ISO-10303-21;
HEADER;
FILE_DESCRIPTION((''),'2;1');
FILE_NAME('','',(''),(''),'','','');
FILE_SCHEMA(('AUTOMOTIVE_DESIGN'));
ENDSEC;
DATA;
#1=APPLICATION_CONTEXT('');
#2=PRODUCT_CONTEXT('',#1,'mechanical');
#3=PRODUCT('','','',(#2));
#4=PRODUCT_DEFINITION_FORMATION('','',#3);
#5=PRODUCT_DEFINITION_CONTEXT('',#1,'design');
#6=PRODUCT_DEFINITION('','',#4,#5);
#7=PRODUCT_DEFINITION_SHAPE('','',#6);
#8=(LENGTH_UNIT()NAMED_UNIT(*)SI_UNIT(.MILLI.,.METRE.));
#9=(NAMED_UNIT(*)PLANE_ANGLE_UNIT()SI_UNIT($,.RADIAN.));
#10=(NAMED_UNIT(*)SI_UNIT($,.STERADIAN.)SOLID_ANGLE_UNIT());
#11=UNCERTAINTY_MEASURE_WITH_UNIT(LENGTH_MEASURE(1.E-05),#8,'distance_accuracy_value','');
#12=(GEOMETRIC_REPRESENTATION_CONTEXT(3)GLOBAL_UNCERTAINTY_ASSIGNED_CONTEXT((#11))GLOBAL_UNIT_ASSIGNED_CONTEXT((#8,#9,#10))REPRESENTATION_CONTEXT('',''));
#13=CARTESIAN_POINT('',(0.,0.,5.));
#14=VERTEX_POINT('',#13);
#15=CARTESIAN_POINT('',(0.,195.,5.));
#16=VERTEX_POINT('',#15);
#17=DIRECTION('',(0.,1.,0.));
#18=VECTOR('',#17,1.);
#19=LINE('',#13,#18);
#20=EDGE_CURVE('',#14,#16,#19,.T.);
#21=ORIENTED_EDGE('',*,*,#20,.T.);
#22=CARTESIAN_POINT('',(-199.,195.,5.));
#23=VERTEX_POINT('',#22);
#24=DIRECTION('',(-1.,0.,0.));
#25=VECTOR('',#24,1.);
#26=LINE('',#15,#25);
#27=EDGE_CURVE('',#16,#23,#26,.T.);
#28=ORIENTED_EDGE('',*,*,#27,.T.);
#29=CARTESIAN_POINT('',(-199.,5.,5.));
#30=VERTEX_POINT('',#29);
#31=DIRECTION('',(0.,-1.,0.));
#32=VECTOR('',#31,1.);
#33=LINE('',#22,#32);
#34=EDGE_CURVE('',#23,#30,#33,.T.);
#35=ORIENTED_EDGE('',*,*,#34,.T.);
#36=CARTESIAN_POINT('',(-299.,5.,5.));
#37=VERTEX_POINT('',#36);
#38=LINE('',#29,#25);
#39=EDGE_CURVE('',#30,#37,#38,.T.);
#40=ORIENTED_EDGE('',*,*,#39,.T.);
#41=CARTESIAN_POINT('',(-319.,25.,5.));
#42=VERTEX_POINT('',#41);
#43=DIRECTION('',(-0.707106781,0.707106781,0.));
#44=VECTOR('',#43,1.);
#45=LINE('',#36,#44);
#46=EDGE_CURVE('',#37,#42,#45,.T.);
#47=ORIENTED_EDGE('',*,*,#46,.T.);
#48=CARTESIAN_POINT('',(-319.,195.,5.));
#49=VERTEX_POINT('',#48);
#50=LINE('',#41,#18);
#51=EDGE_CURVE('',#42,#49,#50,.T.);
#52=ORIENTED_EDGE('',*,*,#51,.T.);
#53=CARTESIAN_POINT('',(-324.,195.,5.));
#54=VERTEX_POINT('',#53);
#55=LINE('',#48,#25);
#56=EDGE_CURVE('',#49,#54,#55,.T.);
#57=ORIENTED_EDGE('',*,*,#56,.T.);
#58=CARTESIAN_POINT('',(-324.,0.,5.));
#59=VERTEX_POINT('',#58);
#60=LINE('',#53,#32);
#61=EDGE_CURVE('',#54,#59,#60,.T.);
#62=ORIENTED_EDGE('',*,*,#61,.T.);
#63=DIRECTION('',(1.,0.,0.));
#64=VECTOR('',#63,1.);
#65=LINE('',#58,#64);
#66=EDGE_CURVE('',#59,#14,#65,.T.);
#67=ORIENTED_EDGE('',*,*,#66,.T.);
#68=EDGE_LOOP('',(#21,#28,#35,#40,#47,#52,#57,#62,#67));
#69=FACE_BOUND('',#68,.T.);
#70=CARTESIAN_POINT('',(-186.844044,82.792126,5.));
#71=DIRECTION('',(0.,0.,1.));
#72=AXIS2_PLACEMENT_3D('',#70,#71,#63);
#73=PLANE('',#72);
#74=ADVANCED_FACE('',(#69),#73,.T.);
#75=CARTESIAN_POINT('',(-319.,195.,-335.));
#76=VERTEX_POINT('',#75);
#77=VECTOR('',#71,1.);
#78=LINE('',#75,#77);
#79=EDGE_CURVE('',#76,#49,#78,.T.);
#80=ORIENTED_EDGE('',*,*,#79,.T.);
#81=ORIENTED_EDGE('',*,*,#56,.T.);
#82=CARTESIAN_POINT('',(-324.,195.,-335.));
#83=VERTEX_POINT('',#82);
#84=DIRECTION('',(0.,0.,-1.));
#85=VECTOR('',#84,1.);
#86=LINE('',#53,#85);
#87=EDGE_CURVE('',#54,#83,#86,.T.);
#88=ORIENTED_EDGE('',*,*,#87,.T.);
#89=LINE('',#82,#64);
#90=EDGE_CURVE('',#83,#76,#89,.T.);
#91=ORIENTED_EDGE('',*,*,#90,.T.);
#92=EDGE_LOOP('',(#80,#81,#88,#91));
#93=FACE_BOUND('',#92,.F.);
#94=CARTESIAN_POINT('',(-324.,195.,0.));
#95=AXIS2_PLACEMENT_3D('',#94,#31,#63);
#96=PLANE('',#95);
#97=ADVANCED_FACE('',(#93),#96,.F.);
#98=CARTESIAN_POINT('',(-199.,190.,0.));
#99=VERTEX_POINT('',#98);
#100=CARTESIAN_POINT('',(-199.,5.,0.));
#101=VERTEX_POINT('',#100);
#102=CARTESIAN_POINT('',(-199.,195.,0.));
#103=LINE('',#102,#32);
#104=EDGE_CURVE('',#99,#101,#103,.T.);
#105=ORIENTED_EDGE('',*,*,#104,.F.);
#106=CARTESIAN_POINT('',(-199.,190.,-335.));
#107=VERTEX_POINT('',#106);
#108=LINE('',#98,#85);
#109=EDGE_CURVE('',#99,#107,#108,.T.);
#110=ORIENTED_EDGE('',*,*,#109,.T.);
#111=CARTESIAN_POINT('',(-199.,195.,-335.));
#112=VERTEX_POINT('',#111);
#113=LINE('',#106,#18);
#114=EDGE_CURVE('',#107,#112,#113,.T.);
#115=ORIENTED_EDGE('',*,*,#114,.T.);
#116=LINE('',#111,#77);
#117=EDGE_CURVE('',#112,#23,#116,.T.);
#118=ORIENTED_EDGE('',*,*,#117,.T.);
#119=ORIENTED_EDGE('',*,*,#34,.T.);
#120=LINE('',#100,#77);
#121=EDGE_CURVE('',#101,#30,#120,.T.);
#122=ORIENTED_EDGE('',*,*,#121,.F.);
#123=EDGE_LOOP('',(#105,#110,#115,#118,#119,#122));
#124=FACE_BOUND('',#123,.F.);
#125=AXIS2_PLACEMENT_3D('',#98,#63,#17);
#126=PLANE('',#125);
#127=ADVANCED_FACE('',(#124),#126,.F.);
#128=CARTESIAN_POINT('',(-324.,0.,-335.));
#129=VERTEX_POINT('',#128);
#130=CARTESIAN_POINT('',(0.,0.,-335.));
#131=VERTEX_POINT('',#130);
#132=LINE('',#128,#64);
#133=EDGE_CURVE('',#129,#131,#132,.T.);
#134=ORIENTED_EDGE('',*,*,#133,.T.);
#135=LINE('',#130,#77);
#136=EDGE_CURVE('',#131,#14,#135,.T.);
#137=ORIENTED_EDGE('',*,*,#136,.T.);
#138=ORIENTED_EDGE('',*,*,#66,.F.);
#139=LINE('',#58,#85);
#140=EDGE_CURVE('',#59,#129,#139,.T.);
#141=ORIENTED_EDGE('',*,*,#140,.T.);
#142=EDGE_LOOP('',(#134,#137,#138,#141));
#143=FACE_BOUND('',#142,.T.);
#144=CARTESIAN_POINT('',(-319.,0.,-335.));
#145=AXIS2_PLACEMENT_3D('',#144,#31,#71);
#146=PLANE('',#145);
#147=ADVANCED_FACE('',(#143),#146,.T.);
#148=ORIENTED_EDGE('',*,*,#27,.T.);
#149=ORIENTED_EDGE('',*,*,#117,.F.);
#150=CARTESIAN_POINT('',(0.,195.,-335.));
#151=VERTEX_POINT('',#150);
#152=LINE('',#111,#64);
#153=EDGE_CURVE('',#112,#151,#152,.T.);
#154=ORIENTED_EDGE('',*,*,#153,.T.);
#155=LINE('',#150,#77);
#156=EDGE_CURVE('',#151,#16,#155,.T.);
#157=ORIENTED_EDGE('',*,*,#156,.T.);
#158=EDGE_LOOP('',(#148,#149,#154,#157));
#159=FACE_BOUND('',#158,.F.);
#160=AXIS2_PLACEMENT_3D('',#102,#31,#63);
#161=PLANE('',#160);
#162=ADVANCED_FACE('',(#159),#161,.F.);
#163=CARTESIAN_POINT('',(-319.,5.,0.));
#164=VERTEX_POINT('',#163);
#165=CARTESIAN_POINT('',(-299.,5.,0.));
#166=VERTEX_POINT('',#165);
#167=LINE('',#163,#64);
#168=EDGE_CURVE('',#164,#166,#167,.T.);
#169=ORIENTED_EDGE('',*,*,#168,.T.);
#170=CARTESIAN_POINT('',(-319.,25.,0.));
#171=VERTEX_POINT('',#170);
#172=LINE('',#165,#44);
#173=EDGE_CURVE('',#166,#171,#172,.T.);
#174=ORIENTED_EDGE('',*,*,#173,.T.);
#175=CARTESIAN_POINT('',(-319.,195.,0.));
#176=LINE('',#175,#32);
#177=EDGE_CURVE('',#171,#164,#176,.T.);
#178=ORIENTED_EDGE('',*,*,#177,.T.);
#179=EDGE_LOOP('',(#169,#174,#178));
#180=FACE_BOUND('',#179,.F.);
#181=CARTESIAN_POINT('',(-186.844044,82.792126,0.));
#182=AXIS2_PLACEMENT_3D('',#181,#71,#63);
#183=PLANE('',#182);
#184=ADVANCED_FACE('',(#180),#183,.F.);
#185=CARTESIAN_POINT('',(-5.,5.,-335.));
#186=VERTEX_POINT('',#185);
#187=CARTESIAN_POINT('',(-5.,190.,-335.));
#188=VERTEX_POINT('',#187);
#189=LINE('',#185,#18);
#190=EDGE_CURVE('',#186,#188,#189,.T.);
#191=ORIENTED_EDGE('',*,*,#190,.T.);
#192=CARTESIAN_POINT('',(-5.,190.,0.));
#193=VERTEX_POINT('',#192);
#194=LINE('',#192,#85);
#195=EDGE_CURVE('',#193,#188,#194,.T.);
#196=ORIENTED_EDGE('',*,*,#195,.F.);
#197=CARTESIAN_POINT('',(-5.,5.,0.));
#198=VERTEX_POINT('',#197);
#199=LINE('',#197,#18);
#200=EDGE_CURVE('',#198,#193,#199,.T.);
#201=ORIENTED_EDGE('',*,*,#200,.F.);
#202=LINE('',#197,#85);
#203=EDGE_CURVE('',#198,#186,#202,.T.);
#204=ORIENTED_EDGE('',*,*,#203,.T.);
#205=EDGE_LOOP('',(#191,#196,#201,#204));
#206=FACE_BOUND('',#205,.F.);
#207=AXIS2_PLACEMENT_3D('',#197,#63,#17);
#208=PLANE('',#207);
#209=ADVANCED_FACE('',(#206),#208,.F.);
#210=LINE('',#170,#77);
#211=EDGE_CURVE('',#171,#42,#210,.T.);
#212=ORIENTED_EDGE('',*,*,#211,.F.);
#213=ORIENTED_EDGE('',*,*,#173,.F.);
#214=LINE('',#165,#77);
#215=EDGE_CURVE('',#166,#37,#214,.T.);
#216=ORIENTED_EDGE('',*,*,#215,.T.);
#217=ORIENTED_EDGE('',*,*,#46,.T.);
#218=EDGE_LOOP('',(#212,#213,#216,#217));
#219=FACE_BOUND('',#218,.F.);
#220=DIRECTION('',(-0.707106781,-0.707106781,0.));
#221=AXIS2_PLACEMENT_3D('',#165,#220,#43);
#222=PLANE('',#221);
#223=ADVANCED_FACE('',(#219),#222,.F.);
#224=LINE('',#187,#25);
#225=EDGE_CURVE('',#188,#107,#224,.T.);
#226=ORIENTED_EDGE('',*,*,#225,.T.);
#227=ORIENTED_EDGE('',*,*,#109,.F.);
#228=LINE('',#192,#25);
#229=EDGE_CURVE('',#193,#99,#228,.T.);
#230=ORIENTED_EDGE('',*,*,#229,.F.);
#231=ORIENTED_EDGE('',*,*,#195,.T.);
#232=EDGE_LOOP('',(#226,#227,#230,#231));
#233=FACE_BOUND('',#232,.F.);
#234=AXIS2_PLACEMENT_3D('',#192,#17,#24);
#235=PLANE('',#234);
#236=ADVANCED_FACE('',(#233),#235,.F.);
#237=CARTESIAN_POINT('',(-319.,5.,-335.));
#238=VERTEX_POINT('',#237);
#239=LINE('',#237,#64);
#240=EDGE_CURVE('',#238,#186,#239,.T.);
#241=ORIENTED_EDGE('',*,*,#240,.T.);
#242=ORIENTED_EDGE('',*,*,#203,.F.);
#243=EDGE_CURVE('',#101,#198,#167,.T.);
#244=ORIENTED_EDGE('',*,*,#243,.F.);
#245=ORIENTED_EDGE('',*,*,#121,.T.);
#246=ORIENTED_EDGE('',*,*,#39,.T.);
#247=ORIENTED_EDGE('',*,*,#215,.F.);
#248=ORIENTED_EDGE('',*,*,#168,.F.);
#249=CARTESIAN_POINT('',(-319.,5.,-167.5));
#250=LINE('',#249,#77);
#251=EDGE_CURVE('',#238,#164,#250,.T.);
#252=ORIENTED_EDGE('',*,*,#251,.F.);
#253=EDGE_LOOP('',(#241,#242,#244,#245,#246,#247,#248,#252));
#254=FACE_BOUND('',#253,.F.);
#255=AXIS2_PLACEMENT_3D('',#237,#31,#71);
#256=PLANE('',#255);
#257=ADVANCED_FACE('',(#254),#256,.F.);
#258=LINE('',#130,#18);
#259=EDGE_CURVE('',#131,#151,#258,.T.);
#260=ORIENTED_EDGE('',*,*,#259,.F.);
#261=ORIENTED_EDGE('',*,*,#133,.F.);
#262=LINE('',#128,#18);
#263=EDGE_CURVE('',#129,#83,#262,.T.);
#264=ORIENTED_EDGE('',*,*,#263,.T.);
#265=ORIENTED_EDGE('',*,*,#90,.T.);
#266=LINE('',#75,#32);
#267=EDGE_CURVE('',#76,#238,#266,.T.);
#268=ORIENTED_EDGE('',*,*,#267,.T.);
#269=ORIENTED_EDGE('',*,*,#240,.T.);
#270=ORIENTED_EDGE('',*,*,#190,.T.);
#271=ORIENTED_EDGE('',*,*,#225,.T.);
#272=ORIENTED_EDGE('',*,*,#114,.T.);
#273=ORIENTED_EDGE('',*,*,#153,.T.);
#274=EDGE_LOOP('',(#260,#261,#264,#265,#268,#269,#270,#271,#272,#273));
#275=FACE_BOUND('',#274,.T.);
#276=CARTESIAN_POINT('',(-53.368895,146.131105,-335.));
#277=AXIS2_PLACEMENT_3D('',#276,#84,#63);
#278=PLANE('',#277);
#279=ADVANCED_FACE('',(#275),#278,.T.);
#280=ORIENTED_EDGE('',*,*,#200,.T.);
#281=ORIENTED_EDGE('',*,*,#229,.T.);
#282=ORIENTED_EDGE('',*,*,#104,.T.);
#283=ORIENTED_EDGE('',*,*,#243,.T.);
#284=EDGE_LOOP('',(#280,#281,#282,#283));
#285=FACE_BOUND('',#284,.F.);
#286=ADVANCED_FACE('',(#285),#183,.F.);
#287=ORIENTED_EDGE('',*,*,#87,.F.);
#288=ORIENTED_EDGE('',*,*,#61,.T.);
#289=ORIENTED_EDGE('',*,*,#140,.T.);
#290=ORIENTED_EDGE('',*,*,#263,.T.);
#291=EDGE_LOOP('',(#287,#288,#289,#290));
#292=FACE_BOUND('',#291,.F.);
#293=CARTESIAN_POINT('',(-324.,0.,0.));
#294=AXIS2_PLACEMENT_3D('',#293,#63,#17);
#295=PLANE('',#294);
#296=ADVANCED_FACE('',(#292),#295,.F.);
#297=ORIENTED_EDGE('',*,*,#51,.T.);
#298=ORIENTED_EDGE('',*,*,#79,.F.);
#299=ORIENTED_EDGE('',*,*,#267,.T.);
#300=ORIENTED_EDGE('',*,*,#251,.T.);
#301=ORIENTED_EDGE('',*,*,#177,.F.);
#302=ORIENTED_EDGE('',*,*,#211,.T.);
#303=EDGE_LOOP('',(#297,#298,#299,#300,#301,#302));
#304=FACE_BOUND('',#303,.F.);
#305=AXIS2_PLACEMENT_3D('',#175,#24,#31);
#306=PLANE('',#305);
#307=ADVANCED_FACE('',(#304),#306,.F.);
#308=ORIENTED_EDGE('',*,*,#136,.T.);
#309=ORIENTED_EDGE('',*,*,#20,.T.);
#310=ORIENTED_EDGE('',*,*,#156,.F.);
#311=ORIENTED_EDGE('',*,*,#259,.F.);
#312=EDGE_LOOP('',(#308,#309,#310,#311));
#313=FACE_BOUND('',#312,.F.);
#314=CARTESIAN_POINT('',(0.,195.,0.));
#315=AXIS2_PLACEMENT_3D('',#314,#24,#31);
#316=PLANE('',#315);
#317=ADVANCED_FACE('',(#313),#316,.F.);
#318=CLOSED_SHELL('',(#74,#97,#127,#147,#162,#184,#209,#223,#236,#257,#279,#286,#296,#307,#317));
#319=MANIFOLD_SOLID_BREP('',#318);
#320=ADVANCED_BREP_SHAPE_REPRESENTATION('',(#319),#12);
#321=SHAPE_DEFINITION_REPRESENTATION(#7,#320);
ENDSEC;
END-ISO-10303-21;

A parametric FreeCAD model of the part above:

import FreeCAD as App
import Part
import Sketcher

V = App.Vector
Q = App.Units.Quantity

doc = App.newDocument("Part")
body = doc.addObject("PartDesign::Body", "Body")

sketch1 = body.newObject("Sketcher::SketchObject", "Sketch")
sketch1.AttachmentSupport = (doc.getObject("XY_Plane"), [""])
sketch1.MapMode = "FlatFace"
sketch1.addGeometry([
    Part.LineSegment(V(-324, 0, 0), V(0, 0, 0)),
    Part.LineSegment(V(0, 0, 0), V(0, 195, 0)),
    Part.LineSegment(V(0, 195, 0), V(-199, 195, 0)),
    Part.LineSegment(V(-199, 195, 0), V(-199, 5, 0)),
    Part.LineSegment(V(-199, 5, 0), V(-299, 5, 0)),
    Part.LineSegment(V(-299, 5, 0), V(-319, 25, 0)),
    Part.LineSegment(V(-319, 25, 0), V(-319, 195, 0)),
    Part.LineSegment(V(-319, 195, 0), V(-324, 195, 0)),
    Part.LineSegment(V(-324, 195, 0), V(-324, 0, 0)),
], False)
sketch1.addConstraint([
    Sketcher.Constraint("Coincident", 0, 2, 1, 1),
    Sketcher.Constraint("Coincident", 1, 2, 2, 1),
    Sketcher.Constraint("Coincident", 2, 2, 3, 1),
    Sketcher.Constraint("Coincident", 3, 2, 4, 1),
    Sketcher.Constraint("Coincident", 4, 2, 5, 1),
    Sketcher.Constraint("Coincident", 5, 2, 6, 1),
    Sketcher.Constraint("Coincident", 6, 2, 7, 1),
    Sketcher.Constraint("Coincident", 7, 2, 8, 1),
    Sketcher.Constraint("Coincident", 8, 2, 0, 1),
    Sketcher.Constraint("Horizontal", 0),
    Sketcher.Constraint("Vertical", 1),
    Sketcher.Constraint("Horizontal", 2),
    Sketcher.Constraint("Vertical", 3),
    Sketcher.Constraint("Horizontal", 4),
    Sketcher.Constraint("Vertical", 6),
    Sketcher.Constraint("Horizontal", 7),
    Sketcher.Constraint("Vertical", 8),
    Sketcher.Constraint("Coincident", 0, 2, -1, 1),
    Sketcher.Constraint("Horizontal", 2, 2, 6, 2),
    Sketcher.Constraint("DistanceX", 0, 1, 0, 2, Q("324 mm")),
    Sketcher.Constraint("DistanceX", 2, 2, 2, 1, Q("199 mm")),
    Sketcher.Constraint("DistanceX", 4, 2, 4, 1, Q("100 mm")),
    Sketcher.Constraint("DistanceX", 7, 2, 7, 1, Q("5 mm")),
    Sketcher.Constraint("DistanceY", 1, 1, 1, 2, Q("195 mm")),
    Sketcher.Constraint("DistanceY", 3, 2, 3, 1, Q("190 mm")),
    Sketcher.Constraint("DistanceY", 6, 1, 6, 2, Q("170 mm")),
])
pad1 = body.newObject("PartDesign::Pad", "Pad")
pad1.Profile = sketch1
pad1.Length = 5

sketch2 = body.newObject("Sketcher::SketchObject", "Sketch001")
sketch2.AttachmentSupport = (doc.getObject("XY_Plane"), [""])
sketch2.MapMode = "FlatFace"
sketch2.addGeometry([
    Part.LineSegment(V(-319, 0, 0), V(-324, 0, 0)),
    Part.LineSegment(V(-324, 0, 0), V(-324, 195, 0)),
    Part.LineSegment(V(-324, 195, 0), V(-319, 195, 0)),
    Part.LineSegment(V(-319, 195, 0), V(-319, 0, 0)),
], False)
sketch2.addConstraint([
    Sketcher.Constraint("Coincident", 0, 2, 1, 1),
    Sketcher.Constraint("Coincident", 1, 2, 2, 1),
    Sketcher.Constraint("Coincident", 2, 2, 3, 1),
    Sketcher.Constraint("Coincident", 3, 2, 0, 1),
    Sketcher.Constraint("Horizontal", 0),
    Sketcher.Constraint("Vertical", 1),
    Sketcher.Constraint("Horizontal", 2),
    Sketcher.Constraint("Vertical", 3),
    Sketcher.Constraint("PointOnObject", 0, 2, -1),
    Sketcher.Constraint("DistanceX", 0, 2, 0, 1, Q("5 mm")),
    Sketcher.Constraint("DistanceY", 1, 1, 1, 2, Q("195 mm")),
    Sketcher.Constraint("DistanceX", 0, 2, -1, 1, Q("324 mm")),
])
pad2 = body.newObject("PartDesign::Pad", "Pad001")
pad2.Profile = sketch2
pad2.Length = 335
pad2.Reversed = True

sketch3 = body.newObject("Sketcher::SketchObject", "Sketch002")
sketch3.AttachmentSupport = (doc.getObject("YZ_Plane"), [""])
sketch3.MapMode = "FlatFace"
sketch3.AttachmentOffset = App.Placement(V(0, 0, -319), App.Rotation())
sketch3.addGeometry([
    Part.LineSegment(V(0, 0, 0), V(0, -335, 0)),
    Part.LineSegment(V(0, -335, 0), V(5, -335, 0)),
    Part.LineSegment(V(5, -335, 0), V(5, 0, 0)),
    Part.LineSegment(V(5, 0, 0), V(0, 0, 0)),
], False)
sketch3.addConstraint([
    Sketcher.Constraint("Coincident", 0, 2, 1, 1),
    Sketcher.Constraint("Coincident", 1, 2, 2, 1),
    Sketcher.Constraint("Coincident", 2, 2, 3, 1),
    Sketcher.Constraint("Coincident", 3, 2, 0, 1),
    Sketcher.Constraint("Vertical", 0),
    Sketcher.Constraint("Horizontal", 1),
    Sketcher.Constraint("Vertical", 2),
    Sketcher.Constraint("Horizontal", 3),
    Sketcher.Constraint("Coincident", 3, 2, -1, 1),
    Sketcher.Constraint("DistanceX", 1, 1, 1, 2, Q("5 mm")),
    Sketcher.Constraint("DistanceY", 0, 2, 0, 1, Q("335 mm")),
])
pad3 = body.newObject("PartDesign::Pad", "Pad002")
pad3.Profile = sketch3
pad3.Length = 319

sketch4 = body.newObject("Sketcher::SketchObject", "Sketch003")
sketch4.AttachmentSupport = (doc.getObject("XY_Plane"), [""])
sketch4.MapMode = "FlatFace"
sketch4.addGeometry([
    Part.LineSegment(V(0, 195, 0), V(0, 5, 0)),
    Part.LineSegment(V(0, 5, 0), V(-5, 5, 0)),
    Part.LineSegment(V(-5, 5, 0), V(-5, 190, 0)),
    Part.LineSegment(V(-5, 190, 0), V(-199, 190, 0)),
    Part.LineSegment(V(-199, 190, 0), V(-199, 195, 0)),
    Part.LineSegment(V(-199, 195, 0), V(0, 195, 0)),
], False)
sketch4.addConstraint([
    Sketcher.Constraint("Coincident", 0, 2, 1, 1),
    Sketcher.Constraint("Coincident", 1, 2, 2, 1),
    Sketcher.Constraint("Coincident", 2, 2, 3, 1),
    Sketcher.Constraint("Coincident", 3, 2, 4, 1),
    Sketcher.Constraint("Coincident", 4, 2, 5, 1),
    Sketcher.Constraint("Coincident", 5, 2, 0, 1),
    Sketcher.Constraint("Vertical", 0),
    Sketcher.Constraint("Horizontal", 1),
    Sketcher.Constraint("Vertical", 2),
    Sketcher.Constraint("Horizontal", 3),
    Sketcher.Constraint("Vertical", 4),
    Sketcher.Constraint("Horizontal", 5),
    Sketcher.Constraint("PointOnObject", 0, 2, -2),
    Sketcher.Constraint("Equal", 1, 4),
    Sketcher.Constraint("DistanceX", 1, 2, 1, 1, Q("5 mm")),
    Sketcher.Constraint("DistanceX", 3, 2, 3, 1, Q("194 mm")),
    Sketcher.Constraint("DistanceY", 0, 2, 0, 1, Q("190 mm")),
    Sketcher.Constraint("DistanceY", -1, 1, 0, 2, Q("5 mm")),
])
pad4 = body.newObject("PartDesign::Pad", "Pad003")
pad4.Profile = sketch4
pad4.Length = 335
pad4.Reversed = True

doc.recompute()
